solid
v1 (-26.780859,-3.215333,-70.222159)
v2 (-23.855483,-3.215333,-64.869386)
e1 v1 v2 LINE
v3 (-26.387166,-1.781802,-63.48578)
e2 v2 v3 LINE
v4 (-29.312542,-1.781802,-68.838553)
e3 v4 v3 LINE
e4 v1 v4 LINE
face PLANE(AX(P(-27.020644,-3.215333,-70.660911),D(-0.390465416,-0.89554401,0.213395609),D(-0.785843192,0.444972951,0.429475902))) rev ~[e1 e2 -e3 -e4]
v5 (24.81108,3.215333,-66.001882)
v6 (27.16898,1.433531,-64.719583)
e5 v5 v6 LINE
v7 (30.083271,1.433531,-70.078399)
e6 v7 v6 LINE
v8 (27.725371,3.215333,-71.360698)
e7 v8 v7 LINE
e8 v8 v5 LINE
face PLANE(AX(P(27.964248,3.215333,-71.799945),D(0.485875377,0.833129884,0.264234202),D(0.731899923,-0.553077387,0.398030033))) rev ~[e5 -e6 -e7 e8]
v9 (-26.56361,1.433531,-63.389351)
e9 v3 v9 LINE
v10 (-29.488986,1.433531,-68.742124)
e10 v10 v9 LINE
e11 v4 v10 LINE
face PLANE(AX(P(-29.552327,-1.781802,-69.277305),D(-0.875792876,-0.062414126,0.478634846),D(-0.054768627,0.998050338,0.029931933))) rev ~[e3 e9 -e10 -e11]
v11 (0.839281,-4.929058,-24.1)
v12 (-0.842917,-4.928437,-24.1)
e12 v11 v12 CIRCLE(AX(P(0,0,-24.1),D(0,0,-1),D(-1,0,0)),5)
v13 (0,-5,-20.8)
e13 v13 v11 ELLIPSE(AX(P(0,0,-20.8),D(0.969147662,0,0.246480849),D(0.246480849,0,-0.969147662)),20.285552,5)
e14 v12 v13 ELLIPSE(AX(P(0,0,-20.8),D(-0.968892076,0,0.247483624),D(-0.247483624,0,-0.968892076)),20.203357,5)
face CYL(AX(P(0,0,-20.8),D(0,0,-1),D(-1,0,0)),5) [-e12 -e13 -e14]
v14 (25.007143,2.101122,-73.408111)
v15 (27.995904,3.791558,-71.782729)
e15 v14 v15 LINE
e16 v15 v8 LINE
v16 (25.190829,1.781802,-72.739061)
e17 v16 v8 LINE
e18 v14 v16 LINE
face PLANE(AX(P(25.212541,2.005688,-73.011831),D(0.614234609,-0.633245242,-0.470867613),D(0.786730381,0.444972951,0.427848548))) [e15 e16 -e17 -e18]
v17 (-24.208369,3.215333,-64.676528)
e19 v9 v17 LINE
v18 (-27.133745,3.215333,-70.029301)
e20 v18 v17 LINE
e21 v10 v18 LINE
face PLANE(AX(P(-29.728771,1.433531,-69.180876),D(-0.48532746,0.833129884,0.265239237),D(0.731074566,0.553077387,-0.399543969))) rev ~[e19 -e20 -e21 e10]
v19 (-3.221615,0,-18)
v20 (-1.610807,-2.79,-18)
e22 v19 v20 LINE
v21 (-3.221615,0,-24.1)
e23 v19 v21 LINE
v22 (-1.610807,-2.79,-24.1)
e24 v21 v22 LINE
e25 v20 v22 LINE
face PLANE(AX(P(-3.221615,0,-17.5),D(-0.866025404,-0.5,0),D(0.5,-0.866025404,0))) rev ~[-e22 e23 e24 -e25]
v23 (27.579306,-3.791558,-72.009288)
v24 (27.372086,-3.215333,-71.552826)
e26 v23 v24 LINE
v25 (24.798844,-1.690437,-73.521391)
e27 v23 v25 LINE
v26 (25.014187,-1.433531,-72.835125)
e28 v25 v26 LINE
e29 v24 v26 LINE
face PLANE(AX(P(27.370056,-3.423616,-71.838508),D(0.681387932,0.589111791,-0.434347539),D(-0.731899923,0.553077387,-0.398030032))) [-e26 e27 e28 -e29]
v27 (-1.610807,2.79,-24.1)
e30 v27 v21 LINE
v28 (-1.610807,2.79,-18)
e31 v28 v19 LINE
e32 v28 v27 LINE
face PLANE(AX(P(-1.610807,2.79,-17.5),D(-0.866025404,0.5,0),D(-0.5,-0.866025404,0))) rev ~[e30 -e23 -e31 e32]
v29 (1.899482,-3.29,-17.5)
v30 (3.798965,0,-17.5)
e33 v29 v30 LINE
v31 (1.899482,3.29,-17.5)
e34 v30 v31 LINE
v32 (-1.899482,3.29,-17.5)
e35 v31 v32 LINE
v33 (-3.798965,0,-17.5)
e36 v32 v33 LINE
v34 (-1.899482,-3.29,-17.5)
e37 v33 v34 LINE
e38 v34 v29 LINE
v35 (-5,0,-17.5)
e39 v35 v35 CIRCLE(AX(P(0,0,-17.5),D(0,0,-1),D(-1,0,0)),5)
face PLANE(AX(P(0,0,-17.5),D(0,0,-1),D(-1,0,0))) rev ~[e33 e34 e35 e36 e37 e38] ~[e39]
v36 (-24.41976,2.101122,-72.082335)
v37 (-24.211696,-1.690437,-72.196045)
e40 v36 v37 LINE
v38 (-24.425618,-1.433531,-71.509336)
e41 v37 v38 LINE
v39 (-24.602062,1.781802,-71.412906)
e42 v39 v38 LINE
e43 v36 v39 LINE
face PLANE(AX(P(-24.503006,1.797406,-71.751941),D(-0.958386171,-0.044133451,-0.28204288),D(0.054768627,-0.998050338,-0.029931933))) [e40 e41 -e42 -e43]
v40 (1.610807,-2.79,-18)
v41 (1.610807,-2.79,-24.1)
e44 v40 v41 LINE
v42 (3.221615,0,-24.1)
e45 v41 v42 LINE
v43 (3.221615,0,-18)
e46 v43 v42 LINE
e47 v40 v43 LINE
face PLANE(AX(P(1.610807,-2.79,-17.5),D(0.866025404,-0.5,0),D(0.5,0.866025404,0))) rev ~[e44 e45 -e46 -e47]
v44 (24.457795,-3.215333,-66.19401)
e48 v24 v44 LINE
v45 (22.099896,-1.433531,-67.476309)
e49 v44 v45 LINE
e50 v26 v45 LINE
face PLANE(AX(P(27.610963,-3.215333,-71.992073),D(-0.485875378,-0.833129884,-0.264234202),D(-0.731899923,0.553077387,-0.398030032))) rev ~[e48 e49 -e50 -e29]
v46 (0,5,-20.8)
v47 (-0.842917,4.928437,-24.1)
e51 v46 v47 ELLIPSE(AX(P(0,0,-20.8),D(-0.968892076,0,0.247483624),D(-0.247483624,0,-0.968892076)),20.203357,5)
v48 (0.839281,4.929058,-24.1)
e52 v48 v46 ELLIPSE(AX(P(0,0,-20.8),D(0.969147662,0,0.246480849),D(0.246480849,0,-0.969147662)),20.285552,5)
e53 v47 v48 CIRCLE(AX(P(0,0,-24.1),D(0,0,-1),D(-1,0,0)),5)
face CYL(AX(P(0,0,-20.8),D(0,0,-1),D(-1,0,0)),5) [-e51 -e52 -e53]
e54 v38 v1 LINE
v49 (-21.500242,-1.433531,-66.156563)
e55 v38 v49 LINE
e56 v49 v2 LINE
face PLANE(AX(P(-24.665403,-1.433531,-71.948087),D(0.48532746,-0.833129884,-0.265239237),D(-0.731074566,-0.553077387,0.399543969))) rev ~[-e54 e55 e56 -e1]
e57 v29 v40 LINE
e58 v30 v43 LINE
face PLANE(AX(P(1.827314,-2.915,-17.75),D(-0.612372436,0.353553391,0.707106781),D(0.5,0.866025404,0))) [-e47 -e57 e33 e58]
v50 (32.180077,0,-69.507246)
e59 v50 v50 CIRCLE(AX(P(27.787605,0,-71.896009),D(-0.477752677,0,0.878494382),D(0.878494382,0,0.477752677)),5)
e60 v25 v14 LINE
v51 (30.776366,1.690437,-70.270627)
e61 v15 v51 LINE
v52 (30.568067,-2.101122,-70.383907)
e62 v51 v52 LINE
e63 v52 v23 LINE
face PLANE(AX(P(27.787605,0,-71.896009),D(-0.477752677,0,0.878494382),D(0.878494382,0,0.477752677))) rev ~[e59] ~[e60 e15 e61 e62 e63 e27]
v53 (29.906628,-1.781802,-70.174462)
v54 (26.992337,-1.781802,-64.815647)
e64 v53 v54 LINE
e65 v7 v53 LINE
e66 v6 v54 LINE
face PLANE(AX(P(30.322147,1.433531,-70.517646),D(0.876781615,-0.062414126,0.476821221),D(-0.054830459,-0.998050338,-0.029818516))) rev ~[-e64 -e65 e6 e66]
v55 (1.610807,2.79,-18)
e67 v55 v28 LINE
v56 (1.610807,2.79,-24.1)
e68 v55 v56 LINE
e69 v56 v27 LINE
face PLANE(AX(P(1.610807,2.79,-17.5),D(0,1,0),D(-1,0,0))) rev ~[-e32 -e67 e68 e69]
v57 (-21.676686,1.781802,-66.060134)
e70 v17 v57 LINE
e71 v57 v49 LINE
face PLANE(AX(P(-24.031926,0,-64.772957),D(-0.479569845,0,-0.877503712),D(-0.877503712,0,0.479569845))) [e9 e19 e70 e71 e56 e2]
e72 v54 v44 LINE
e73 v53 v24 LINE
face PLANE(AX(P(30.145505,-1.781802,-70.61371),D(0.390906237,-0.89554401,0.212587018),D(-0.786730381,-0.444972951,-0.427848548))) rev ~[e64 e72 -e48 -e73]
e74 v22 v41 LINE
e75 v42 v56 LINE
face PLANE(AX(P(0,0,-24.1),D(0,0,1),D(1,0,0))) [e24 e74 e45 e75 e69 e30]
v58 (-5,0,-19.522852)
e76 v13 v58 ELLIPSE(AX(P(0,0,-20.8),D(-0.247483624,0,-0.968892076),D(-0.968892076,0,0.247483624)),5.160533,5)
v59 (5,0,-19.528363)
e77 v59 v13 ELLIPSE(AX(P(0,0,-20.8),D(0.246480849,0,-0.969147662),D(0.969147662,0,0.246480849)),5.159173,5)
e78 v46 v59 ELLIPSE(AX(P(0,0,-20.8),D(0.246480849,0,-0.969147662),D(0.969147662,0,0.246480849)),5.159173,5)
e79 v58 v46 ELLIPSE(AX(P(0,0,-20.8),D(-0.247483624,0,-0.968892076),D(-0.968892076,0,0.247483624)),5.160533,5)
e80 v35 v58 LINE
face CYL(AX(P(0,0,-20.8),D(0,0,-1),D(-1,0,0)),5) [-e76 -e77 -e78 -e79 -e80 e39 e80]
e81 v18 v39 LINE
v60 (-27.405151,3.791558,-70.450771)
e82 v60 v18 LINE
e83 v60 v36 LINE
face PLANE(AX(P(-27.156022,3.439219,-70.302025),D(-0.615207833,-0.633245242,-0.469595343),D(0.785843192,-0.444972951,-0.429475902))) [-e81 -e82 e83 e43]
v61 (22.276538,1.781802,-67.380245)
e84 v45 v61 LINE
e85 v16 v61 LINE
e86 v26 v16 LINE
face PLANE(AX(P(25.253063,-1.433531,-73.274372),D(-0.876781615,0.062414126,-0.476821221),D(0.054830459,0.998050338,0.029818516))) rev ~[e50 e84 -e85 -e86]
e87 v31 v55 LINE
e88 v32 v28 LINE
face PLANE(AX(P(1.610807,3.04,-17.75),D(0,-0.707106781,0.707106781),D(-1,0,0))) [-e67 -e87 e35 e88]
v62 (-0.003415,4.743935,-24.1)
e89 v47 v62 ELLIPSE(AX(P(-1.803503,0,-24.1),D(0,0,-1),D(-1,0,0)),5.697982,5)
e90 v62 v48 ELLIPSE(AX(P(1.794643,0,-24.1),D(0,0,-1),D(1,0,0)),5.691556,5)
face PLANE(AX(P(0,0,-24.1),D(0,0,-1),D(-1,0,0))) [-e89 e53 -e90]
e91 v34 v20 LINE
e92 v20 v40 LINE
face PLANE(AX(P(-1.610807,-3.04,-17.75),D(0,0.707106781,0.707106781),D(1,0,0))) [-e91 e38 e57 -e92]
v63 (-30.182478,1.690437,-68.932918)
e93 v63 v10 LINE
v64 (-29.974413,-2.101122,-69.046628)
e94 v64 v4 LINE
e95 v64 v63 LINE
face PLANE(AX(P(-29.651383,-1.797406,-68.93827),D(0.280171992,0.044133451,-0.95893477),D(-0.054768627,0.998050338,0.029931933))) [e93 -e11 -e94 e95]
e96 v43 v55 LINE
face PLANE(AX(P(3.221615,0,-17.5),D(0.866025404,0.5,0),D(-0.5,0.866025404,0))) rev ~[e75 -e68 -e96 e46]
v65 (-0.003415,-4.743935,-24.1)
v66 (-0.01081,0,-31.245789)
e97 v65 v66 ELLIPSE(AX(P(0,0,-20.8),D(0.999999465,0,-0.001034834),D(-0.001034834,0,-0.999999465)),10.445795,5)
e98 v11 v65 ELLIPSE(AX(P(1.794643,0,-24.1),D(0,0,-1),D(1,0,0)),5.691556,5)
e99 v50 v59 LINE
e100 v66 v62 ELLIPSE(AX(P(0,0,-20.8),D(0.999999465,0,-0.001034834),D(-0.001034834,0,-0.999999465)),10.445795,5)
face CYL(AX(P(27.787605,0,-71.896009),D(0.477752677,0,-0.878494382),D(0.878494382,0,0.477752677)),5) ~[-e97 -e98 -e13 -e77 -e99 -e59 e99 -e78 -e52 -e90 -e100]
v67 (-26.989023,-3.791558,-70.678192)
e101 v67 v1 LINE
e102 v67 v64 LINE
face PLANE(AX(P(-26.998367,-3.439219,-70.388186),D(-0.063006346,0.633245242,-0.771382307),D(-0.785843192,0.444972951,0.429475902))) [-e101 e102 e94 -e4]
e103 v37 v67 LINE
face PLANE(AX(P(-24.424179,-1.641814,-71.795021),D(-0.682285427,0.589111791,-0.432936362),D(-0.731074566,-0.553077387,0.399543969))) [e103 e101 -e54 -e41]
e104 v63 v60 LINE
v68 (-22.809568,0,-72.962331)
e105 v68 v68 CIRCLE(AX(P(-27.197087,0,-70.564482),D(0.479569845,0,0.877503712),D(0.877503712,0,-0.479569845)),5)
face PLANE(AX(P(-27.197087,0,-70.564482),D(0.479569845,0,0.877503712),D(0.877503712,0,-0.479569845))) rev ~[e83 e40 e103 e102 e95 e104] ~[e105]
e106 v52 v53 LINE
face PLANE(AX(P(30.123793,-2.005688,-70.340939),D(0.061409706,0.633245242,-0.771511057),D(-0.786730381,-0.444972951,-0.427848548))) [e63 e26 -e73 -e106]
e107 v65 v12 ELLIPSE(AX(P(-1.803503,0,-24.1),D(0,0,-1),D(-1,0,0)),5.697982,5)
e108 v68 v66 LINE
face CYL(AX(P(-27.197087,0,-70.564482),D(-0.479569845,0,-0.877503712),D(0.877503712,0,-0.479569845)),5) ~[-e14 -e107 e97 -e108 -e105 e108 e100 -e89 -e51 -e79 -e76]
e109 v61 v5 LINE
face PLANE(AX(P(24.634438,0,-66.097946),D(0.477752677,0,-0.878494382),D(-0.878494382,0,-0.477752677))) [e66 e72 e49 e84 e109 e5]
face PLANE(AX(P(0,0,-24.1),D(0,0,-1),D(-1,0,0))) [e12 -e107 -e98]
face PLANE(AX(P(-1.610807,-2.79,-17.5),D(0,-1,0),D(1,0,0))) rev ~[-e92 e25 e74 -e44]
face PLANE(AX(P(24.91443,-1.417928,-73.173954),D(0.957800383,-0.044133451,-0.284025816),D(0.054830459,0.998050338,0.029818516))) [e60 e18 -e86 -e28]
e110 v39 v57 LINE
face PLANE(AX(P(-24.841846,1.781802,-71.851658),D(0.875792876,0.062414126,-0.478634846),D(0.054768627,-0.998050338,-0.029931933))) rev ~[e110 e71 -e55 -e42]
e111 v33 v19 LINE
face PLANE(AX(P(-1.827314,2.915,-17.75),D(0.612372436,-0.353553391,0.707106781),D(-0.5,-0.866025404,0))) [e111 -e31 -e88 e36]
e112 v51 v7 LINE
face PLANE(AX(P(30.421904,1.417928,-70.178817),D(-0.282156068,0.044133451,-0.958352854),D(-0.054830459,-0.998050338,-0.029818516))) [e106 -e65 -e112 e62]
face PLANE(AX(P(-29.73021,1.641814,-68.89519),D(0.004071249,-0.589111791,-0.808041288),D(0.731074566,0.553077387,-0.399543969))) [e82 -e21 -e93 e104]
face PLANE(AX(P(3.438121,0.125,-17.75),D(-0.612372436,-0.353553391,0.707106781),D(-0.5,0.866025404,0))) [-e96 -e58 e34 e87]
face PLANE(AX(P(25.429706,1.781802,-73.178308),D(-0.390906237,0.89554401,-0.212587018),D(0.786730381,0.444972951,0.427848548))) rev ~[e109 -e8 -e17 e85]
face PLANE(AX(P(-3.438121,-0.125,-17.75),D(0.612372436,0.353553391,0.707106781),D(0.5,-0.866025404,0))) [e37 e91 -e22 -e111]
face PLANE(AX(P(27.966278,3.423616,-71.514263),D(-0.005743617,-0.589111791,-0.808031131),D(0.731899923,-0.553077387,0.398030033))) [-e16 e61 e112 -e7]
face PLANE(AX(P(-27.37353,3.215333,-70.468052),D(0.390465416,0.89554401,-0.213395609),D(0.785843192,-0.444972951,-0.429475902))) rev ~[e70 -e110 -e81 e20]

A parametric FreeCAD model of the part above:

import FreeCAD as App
import Part
import Sketcher

V = App.Vector
Q = App.Units.Quantity


def edges_at(feature, points):
    """Names of the edges that pass closest to the given points."""
    edges = feature.Shape.Edges
    near = lambda p: min(range(len(edges)), key=lambda i: edges[i].distToShape(Part.Vertex(*p))[0])
    return sorted({f"Edge{near(p) + 1}" for p in points})

doc = App.newDocument("Part")
body = doc.addObject("PartDesign::Body", "Body")

# Sketch on XZ plane
sketch1 = body.newObject("Sketcher::SketchObject", "Sketch")
sketch1.AttachmentSupport = (doc.getObject("XZ_Plane"), [""])
sketch1.MapMode = "FlatFace"
sketch1.addGeometry(Part.LineSegment(V(-5, -24.1, 0), V(-5, -17.5, 0)), False)
sketch1.addGeometry(Part.LineSegment(V(-5, -17.5, 0), V(0, -17.5, 0)), False)
sketch1.addGeometry(Part.LineSegment(V(0, -17.5, 0), V(0, -24.1, 0)), False)
sketch1.addGeometry(Part.LineSegment(V(0, -24.1, 0), V(-5, -24.1, 0)), False)
sketch1.addConstraint(Sketcher.Constraint("Coincident", 0, 2, 1, 1))
sketch1.addConstraint(Sketcher.Constraint("Coincident", 1, 2, 2, 1))
sketch1.addConstraint(Sketcher.Constraint("Coincident", 2, 2, 3, 1))
sketch1.addConstraint(Sketcher.Constraint("Coincident", 3, 2, 0, 1))
sketch1.addConstraint(Sketcher.Constraint("Vertical", 0))
sketch1.addConstraint(Sketcher.Constraint("Horizontal", 1))
sketch1.addConstraint(Sketcher.Constraint("Vertical", 2))
sketch1.addConstraint(Sketcher.Constraint("Horizontal", 3))
sketch1.addConstraint(Sketcher.Constraint("PointOnObject", 1, 2, -2))
sketch1.addConstraint(Sketcher.Constraint("DistanceX", 1, 1, 1, 2, Q("5 mm")))
sketch1.addConstraint(Sketcher.Constraint("DistanceY", 0, 1, 0, 2, Q("6.6 mm")))
sketch1.addConstraint(Sketcher.Constraint("DistanceY", 0, 2, -1, 1, Q("17.5 mm")))
revolution = body.newObject("PartDesign::Revolution", "Revolution")
revolution.Profile = sketch1
revolution.ReferenceAxis = (sketch1, ["V_Axis"])
revolution.Angle = 360

# Sketch on an angled plane
sketch2 = body.newObject("Sketcher::SketchObject", "Sketch001")
sketch2.Placement = App.Placement(V(-35.950233, 0, -65.780747), App.Rotation(V(0.877503712, 0, -0.479569845), V(0, 1.000000001, 0), V(0.479569845, 0, 0.877503712), "ZXY"))
sketch2.addGeometry(Part.Circle(V(9.975053, 0, 0), V(0, 0, 1), 5), False)
sketch2.addConstraint(Sketcher.Constraint("PointOnObject", 0, 3, -1))
sketch2.addConstraint(Sketcher.Constraint("Diameter", 0, Q("10 mm")))
sketch2.addConstraint(Sketcher.Constraint("DistanceX", -1, 1, 0, 3, Q("9.975053 mm")))
pad1 = body.newObject("PartDesign::Pad", "Pad")
pad1.Profile = sketch2
pad1.Length = 56.71142

# Sketch on an angled plane
sketch3 = body.newObject("Sketcher::SketchObject", "Sketch002")
sketch3.Placement = App.Placement(V(36.517428, 0, -67.148458), App.Rotation(V(0.878494382, 0, 0.477752677), V(0, 1, 0), V(-0.477752677, 0, 0.878494382), "ZXY"))
sketch3.addGeometry(Part.Circle(V(-9.937256, 0, 0), V(0, 0, 1), 5), False)
sketch3.addConstraint(Sketcher.Constraint("PointOnObject", 0, 3, -1))
sketch3.addConstraint(Sketcher.Constraint("Diameter", 0, Q("10 mm")))
sketch3.addConstraint(Sketcher.Constraint("DistanceX", 0, 3, -1, 1, Q("9.937256 mm")))
pad2 = body.newObject("PartDesign::Pad", "Pad001")
pad2.Profile = sketch3
pad2.Type = "UpToFirst"

# Sketch on an angled plane
sketch4 = body.newObject("Sketcher::SketchObject", "Sketch003")
sketch4.Placement = App.Placement(V(-35.950233, 0, -65.780747), App.Rotation(V(-0.877503712, 0, 0.479569845), V(0, 1.000000001, 0), V(-0.479569845, 0, -0.877503712), "ZXY"))
sketch4.addGeometry(Part.LineSegment(V(-7.089955, 1.433531, 0), V(-9.773979, 3.215333, 0)), False)
sketch4.addGeometry(Part.LineSegment(V(-9.773979, 3.215333, 0), V(-12.659076, 1.781802, 0)), False)
sketch4.addGeometry(Part.LineSegment(V(-12.659076, 1.781802, 0), V(-12.86015, -1.433531, 0)), False)
sketch4.addGeometry(Part.LineSegment(V(-12.86015, -1.433531, 0), V(-10.176127, -3.215333, 0)), False)
sketch4.addGeometry(Part.LineSegment(V(-10.176127, -3.215333, 0), V(-7.291029, -1.781802, 0)), False)
sketch4.addGeometry(Part.LineSegment(V(-7.291029, -1.781802, 0), V(-7.089955, 1.433531, 0)), False)
sketch4.addConstraint(Sketcher.Constraint("Coincident", 0, 2, 1, 1))
sketch4.addConstraint(Sketcher.Constraint("Coincident", 1, 2, 2, 1))
sketch4.addConstraint(Sketcher.Constraint("Coincident", 2, 2, 3, 1))
sketch4.addConstraint(Sketcher.Constraint("Coincident", 3, 2, 4, 1))
sketch4.addConstraint(Sketcher.Constraint("Coincident", 4, 2, 5, 1))
sketch4.addConstraint(Sketcher.Constraint("Coincident", 5, 2, 0, 1))
sketch4.addConstraint(Sketcher.Constraint("Parallel", 0, 3))
sketch4.addConstraint(Sketcher.Constraint("Parallel", 1, 4))
sketch4.addConstraint(Sketcher.Constraint("Parallel", 2, 5))
sketch4.addConstraint(Sketcher.Constraint("Equal", 0, 1))
sketch4.addConstraint(Sketcher.Constraint("Equal", 1, 2))
sketch4.addConstraint(Sketcher.Constraint("Equal", 2, 3))
sketch4.addConstraint(Sketcher.Constraint("DistanceX", 0, 2, -1, 1, Q("9.773979 mm")))
sketch4.addConstraint(Sketcher.Constraint("DistanceX", 2, 2, -1, 1, Q("12.86015 mm")))
sketch4.addConstraint(Sketcher.Constraint("DistanceY", 2, 2, -1, 1, Q("1.433531 mm")))
sketch4.addConstraint(Sketcher.Constraint("DistanceX", 4, 2, -1, 1, Q("7.291029 mm")))
sketch4.addConstraint(Sketcher.Constraint("DistanceY", -1, 1, 5, 2, Q("1.433531 mm")))
sketch4.addConstraint(Sketcher.Constraint("DistanceY", 1, 2, 0, 2, Q("1.433531 mm")))
pocket1 = body.newObject("PartDesign::Pocket", "Pocket")
pocket1.Profile = sketch4
pocket1.Length = 6.6

# Sketch on an angled plane
sketch5 = body.newObject("Sketcher::SketchObject", "Sketch004")
sketch5.Placement = App.Placement(V(36.517428, 0, -67.148458), App.Rotation(V(-0.878494382, 0, -0.477752677), V(0, 1, 0), V(0.477752677, 0, -0.878494382), "ZXY"))
sketch5.addGeometry(Part.LineSegment(V(12.621279, 1.781802, 0), V(9.736181, 3.215333, 0)), False)
sketch5.addGeometry(Part.LineSegment(V(9.736181, 3.215333, 0), V(7.052158, 1.433531, 0)), False)
sketch5.addGeometry(Part.LineSegment(V(7.052158, 1.433531, 0), V(7.253232, -1.781802, 0)), False)
sketch5.addGeometry(Part.LineSegment(V(7.253232, -1.781802, 0), V(10.13833, -3.215333, 0)), False)
sketch5.addGeometry(Part.LineSegment(V(10.13833, -3.215333, 0), V(12.822353, -1.433531, 0)), False)
sketch5.addGeometry(Part.LineSegment(V(12.822353, -1.433531, 0), V(12.621279, 1.781802, 0)), False)
sketch5.addConstraint(Sketcher.Constraint("Coincident", 0, 2, 1, 1))
sketch5.addConstraint(Sketcher.Constraint("Coincident", 1, 2, 2, 1))
sketch5.addConstraint(Sketcher.Constraint("Coincident", 2, 2, 3, 1))
sketch5.addConstraint(Sketcher.Constraint("Coincident", 3, 2, 4, 1))
sketch5.addConstraint(Sketcher.Constraint("Coincident", 4, 2, 5, 1))
sketch5.addConstraint(Sketcher.Constraint("Coincident", 5, 2, 0, 1))
sketch5.addConstraint(Sketcher.Constraint("Parallel", 0, 3))
sketch5.addConstraint(Sketcher.Constraint("Parallel", 1, 4))
sketch5.addConstraint(Sketcher.Constraint("Parallel", 2, 5))
sketch5.addConstraint(Sketcher.Constraint("Equal", 0, 1))
sketch5.addConstraint(Sketcher.Constraint("Equal", 1, 2))
sketch5.addConstraint(Sketcher.Constraint("Equal", 2, 3))
sketch5.addConstraint(Sketcher.Constraint("DistanceX", -1, 1, 0, 2, Q("9.736181 mm")))
sketch5.addConstraint(Sketcher.Constraint("DistanceX", -1, 1, 1, 2, Q("7.052158 mm")))
sketch5.addConstraint(Sketcher.Constraint("DistanceY", -1, 1, 1, 2, Q("1.433531 mm")))
sketch5.addConstraint(Sketcher.Constraint("DistanceX", -1, 1, 3, 2, Q("10.13833 mm")))
sketch5.addConstraint(Sketcher.Constraint("DistanceY", 4, 2, -1, 1, Q("1.433531 mm")))
sketch5.addConstraint(Sketcher.Constraint("DistanceX", -1, 1, 5, 2, Q("12.621279 mm")))
pocket2 = body.newObject("PartDesign::Pocket", "Pocket001")
pocket2.Profile = sketch5
pocket2.Length = 6.6

# Sketch on XY plane
sketch6 = body.newObject("Sketcher::SketchObject", "Sketch005")
sketch6.AttachmentSupport = (doc.getObject("XY_Plane"), [""])
sketch6.MapMode = "FlatFace"
sketch6.AttachmentOffset = App.Placement(V(0, 0, -17.5), App.Rotation())
sketch6.addGeometry(Part.LineSegment(V(1.610807, 2.79, 0), V(-1.610807, 2.79, 0)), False)
sketch6.addGeometry(Part.LineSegment(V(-1.610807, 2.79, 0), V(-3.221615, 0, 0)), False)
sketch6.addGeometry(Part.LineSegment(V(-3.221615, 0, 0), V(-1.610807, -2.79, 0)), False)
sketch6.addGeometry(Part.LineSegment(V(-1.610807, -2.79, 0), V(1.610807, -2.79, 0)), False)
sketch6.addGeometry(Part.LineSegment(V(1.610807, -2.79, 0), V(3.221615, 0, 0)), False)
sketch6.addGeometry(Part.LineSegment(V(3.221615, 0, 0), V(1.610807, 2.79, 0)), False)
sketch6.addConstraint(Sketcher.Constraint("Coincident", 0, 2, 1, 1))
sketch6.addConstraint(Sketcher.Constraint("Coincident", 1, 2, 2, 1))
sketch6.addConstraint(Sketcher.Constraint("Coincident", 2, 2, 3, 1))
sketch6.addConstraint(Sketcher.Constraint("Coincident", 3, 2, 4, 1))
sketch6.addConstraint(Sketcher.Constraint("Coincident", 4, 2, 5, 1))
sketch6.addConstraint(Sketcher.Constraint("Coincident", 5, 2, 0, 1))
sketch6.addConstraint(Sketcher.Constraint("Horizontal", 0))
sketch6.addConstraint(Sketcher.Constraint("Horizontal", 3))
sketch6.addConstraint(Sketcher.Constraint("Symmetric", 0, 2, 3, 2, -1, 1))
sketch6.addConstraint(Sketcher.Constraint("Symmetric", 1, 2, 4, 2, -1, 1))
sketch6.addConstraint(Sketcher.Constraint("PointOnObject", 1, 2, -1))
sketch6.addConstraint(Sketcher.Constraint("Parallel", 2, 5))
sketch6.addConstraint(Sketcher.Constraint("Vertical", 0, 2, 2, 2))
sketch6.addConstraint(Sketcher.Constraint("Angle", 1, Q("-120 deg")))
sketch6.addConstraint(Sketcher.Constraint("DistanceY", -1, 1, 0, 2, Q("2.79 mm")))
sketch6.addConstraint(Sketcher.Constraint("DistanceX", 0, 2, 0, 1, Q("3.221615 mm")))
pocket3 = body.newObject("PartDesign::Pocket", "Pocket002")
pocket3.Profile = sketch6
pocket3.Length = 6.6
doc.recompute()

chamfer = body.newObject("PartDesign::Chamfer", "Chamfer")
chamfer.Base = (pocket3, edges_at(pocket3, [
    (-29.641, -0.174, -69.229),
    (-28.551, 2.324, -69.824),
    (-26.108, 2.499, -71.16),
    (-24.754, 0.174, -71.9),
    (-25.843, -2.324, -71.304),
    (-28.286, -2.499, -69.969),
    (25.341, 0.174, -73.226),
    (26.697, 2.499, -72.489),
    (29.143, 2.324, -71.159),
    (30.234, -0.174, -70.566),
    (28.878, -2.499, -71.303),
    (26.432, -2.324, -72.633),
    (2.416, 1.395, -17.5),
    (0, 2.79, -17.5),
    (-2.416, 1.395, -17.5),
    (-2.416, -1.395, -17.5),
    (0, -2.79, -17.5),
    (2.416, -1.395, -17.5),
]))
chamfer.Size = 0.5

doc.recompute()
